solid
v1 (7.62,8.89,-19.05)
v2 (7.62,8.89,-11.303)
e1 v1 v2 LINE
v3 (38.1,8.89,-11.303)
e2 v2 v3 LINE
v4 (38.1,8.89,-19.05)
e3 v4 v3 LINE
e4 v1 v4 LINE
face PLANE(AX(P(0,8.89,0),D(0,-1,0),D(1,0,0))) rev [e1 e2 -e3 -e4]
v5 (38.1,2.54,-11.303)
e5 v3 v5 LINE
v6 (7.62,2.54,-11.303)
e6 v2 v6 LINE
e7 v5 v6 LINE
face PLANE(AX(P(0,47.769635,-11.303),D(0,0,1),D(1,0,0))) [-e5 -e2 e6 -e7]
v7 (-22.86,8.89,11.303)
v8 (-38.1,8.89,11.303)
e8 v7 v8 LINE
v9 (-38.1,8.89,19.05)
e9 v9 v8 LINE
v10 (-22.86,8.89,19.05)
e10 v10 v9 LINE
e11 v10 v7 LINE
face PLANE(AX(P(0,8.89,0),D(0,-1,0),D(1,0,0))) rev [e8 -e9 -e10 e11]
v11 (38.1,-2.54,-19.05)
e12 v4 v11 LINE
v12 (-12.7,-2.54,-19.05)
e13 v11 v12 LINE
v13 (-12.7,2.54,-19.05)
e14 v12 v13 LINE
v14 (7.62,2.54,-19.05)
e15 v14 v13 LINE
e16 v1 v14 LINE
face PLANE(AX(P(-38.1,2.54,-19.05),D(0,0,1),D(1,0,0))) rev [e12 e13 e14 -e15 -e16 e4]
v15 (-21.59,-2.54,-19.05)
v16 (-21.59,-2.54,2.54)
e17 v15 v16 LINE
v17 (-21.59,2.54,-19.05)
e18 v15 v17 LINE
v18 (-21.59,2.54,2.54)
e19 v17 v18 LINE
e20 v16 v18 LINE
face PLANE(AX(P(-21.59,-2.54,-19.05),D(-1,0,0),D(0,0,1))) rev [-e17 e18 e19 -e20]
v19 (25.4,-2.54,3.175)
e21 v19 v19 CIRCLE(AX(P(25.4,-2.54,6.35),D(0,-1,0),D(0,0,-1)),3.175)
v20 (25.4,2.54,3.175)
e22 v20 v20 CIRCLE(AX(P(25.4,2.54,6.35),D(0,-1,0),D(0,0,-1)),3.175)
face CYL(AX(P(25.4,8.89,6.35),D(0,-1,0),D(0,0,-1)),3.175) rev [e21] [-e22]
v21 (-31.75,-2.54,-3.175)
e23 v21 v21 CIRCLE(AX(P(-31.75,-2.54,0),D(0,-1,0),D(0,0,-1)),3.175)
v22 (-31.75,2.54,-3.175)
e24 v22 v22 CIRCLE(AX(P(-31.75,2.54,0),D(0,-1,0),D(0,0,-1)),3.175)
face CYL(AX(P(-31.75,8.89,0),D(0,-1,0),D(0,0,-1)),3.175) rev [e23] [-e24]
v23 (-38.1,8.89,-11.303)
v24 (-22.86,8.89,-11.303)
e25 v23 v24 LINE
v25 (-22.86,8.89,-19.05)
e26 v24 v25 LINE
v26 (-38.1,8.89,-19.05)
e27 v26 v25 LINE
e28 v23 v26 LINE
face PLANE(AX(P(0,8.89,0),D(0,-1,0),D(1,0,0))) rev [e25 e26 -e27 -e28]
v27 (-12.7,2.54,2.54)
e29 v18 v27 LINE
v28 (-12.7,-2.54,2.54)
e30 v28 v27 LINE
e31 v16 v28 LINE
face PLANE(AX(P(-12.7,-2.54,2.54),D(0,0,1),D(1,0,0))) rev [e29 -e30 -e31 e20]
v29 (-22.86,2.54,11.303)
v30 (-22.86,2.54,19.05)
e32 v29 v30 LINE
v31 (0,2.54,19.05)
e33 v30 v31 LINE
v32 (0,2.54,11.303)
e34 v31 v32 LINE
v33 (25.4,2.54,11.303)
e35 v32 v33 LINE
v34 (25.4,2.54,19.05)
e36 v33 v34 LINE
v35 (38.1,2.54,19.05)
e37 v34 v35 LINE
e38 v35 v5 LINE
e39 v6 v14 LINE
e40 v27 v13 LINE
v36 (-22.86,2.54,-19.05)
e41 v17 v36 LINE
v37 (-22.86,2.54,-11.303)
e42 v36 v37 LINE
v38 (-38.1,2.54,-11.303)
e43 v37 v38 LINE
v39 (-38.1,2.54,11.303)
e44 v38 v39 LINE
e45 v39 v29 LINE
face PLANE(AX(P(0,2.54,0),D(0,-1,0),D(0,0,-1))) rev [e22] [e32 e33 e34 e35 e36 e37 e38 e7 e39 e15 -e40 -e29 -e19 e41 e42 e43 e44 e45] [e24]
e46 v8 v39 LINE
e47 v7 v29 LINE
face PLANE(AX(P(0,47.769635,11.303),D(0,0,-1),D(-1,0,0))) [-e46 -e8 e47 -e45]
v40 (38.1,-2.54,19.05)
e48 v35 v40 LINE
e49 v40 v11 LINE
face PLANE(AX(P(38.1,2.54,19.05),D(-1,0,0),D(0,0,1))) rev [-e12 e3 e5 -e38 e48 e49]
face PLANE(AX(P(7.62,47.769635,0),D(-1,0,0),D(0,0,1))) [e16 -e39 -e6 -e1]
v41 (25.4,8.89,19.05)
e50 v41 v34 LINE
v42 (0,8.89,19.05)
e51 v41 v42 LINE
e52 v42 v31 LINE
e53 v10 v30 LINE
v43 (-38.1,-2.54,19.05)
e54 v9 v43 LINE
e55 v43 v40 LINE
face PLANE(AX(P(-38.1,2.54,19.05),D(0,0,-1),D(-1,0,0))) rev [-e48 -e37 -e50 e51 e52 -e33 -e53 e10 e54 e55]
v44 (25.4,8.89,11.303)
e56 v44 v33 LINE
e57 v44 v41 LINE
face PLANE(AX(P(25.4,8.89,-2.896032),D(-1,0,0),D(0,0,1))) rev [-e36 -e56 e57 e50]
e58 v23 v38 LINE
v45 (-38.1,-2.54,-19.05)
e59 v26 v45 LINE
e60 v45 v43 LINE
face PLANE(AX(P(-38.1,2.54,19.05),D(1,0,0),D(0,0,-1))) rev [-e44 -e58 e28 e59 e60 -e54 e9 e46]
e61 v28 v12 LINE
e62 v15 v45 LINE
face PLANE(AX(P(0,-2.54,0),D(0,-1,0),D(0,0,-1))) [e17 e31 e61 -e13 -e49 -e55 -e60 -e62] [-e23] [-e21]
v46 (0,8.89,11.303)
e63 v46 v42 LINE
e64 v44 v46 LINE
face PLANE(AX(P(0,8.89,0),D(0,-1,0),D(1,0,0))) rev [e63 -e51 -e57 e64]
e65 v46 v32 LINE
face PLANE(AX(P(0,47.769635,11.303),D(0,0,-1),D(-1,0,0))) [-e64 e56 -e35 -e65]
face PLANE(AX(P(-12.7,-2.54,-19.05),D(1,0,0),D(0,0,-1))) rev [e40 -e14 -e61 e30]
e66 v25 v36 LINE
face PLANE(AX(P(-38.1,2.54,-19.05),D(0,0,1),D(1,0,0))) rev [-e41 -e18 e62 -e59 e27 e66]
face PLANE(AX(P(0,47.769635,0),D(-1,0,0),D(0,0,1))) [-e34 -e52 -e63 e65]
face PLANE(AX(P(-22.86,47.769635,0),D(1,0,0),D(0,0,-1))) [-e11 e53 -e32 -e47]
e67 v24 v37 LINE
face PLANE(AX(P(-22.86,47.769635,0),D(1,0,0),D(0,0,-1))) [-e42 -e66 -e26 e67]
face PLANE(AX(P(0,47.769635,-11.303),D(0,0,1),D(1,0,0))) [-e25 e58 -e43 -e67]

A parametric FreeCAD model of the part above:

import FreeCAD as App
import Part
import Sketcher
Q = App.Units.Quantity


def add_polygon(sketch, points):
    """Adds a closed chain of lines whose ends are joined by coincident constraints."""
    first, n = sketch.GeometryCount, len(points)
    for a, b in zip(points, points[1:] + points[:1]):
        sketch.addGeometry(Part.LineSegment(App.Vector(*a, 0), App.Vector(*b, 0)), False)
    for i in range(n):
        sketch.addConstraint(Sketcher.Constraint("Coincident", first + i, 2, first + (i + 1) % n, 1))

doc = App.newDocument("Part")
body = doc.addObject("PartDesign::Body", "Body")

sketch1 = doc.addObject("Sketcher::SketchObject", "Sketch")
body.addObject(sketch1)
sketch1.AttachmentSupport = (doc.XZ_Plane, [""])
sketch1.MapMode = "FlatFace"
add_polygon(sketch1, [(-38, -19), (-38, 19), (38, 19), (38, -19)])
sketch1.addConstraint(Sketcher.Constraint("Vertical", 0))
sketch1.addConstraint(Sketcher.Constraint("Horizontal", 1))
sketch1.addConstraint(Sketcher.Constraint("Vertical", 2))
sketch1.addConstraint(Sketcher.Constraint("Horizontal", 3))
sketch1.addConstraint(Sketcher.Constraint("Symmetric", 0, 2, 2, 2, -1, 1))
sketch1.addConstraint(Sketcher.Constraint("DistanceX", 1, 1, 1, 2, Q("3 in")))
sketch1.addConstraint(Sketcher.Constraint("DistanceY", 0, 1, 0, 2, Q("1.5 in")))
pad1 = doc.addObject("PartDesign::Pad", "Pad")
body.addObject(pad1)
pad1.Profile = sketch1
pad1.Length = Q("0.2 in")
pad1.Midplane = True

sketch2 = doc.addObject("Sketcher::SketchObject", "Sketch001")
body.addObject(sketch2)
sketch2.AttachmentSupport = (doc.XZ_Plane, [""])
sketch2.MapMode = "FlatFace"
sketch2.AttachmentOffset = App.Placement(App.Vector(0, 0, -0.1 * 25.4), App.Rotation())
add_polygon(sketch2, [(-38, -19), (-38, -11), (-23, -11), (-23, -19)])
add_polygon(sketch2, [(8, -19), (8, -11), (38, -11), (38, -19)])
add_polygon(sketch2, [(0, 11), (0, 19), (38, 19), (38, 11)])
add_polygon(sketch2, [(-38, 11), (-38, 19), (-23, 19), (-23, 11)])
sketch2.addConstraint(Sketcher.Constraint("Vertical", 0))
sketch2.addConstraint(Sketcher.Constraint("Horizontal", 1))
sketch2.addConstraint(Sketcher.Constraint("Vertical", 2))
sketch2.addConstraint(Sketcher.Constraint("Horizontal", 3))
sketch2.addConstraint(Sketcher.Constraint("Vertical", 4))
sketch2.addConstraint(Sketcher.Constraint("Horizontal", 5))
sketch2.addConstraint(Sketcher.Constraint("Vertical", 6))
sketch2.addConstraint(Sketcher.Constraint("Horizontal", 7))
sketch2.addConstraint(Sketcher.Constraint("Vertical", 8))
sketch2.addConstraint(Sketcher.Constraint("Horizontal", 9))
sketch2.addConstraint(Sketcher.Constraint("Vertical", 10))
sketch2.addConstraint(Sketcher.Constraint("Horizontal", 11))
sketch2.addConstraint(Sketcher.Constraint("Vertical", 12))
sketch2.addConstraint(Sketcher.Constraint("Horizontal", 13))
sketch2.addConstraint(Sketcher.Constraint("Vertical", 14))
sketch2.addConstraint(Sketcher.Constraint("Horizontal", 15))
sketch2.addConstraint(Sketcher.Constraint("Symmetric", 3, 2, 9, 2, -1, 1))
sketch2.addConstraint(Sketcher.Constraint("Symmetric", 6, 2, 12, 2, -1, 1))
sketch2.addConstraint(Sketcher.Constraint("Symmetric", 0, 2, 5, 2, -2))
sketch2.addConstraint(Sketcher.Constraint("Symmetric", 2, 2, 13, 2, -1))
sketch2.addConstraint(Sketcher.Constraint("PointOnObject", 8, 2, -2))
sketch2.addConstraint(Sketcher.Constraint("Horizontal", 11, 2, 14, 2))
sketch2.addConstraint(Sketcher.Constraint("Equal", 6, 8))
sketch2.addConstraint(Sketcher.Constraint("DistanceX", 1, 1, 1, 2, Q("0.6 in")))
sketch2.addConstraint(Sketcher.Constraint("DistanceX", 5, 1, 5, 2, Q("1.2 in")))
sketch2.addConstraint(Sketcher.Constraint("DistanceX", 9, 1, 9, 2, Q("1.5 in")))
sketch2.addConstraint(Sketcher.Constraint("DistanceY", 7, 2, 8, 2, Q("1.5 in")))
sketch2.addConstraint(Sketcher.Constraint("DistanceY", 0, 1, 0, 2, Q("0.305 in")))
pad2 = doc.addObject("PartDesign::Pad", "Pad001")
body.addObject(pad2)
pad2.Profile = sketch2
pad2.Length = Q("0.25 in")
pad2.Reversed = True

sketch3 = doc.addObject("Sketcher::SketchObject", "Sketch002")
body.addObject(sketch3)
sketch3.AttachmentSupport = (doc.XZ_Plane, [""])
sketch3.MapMode = "FlatFace"
sketch3.AttachmentOffset = App.Placement(App.Vector(0, 0, -0.1 * 25.4), App.Rotation())
add_polygon(sketch3, [(-22, -19), (-22, 3), (-13, 3), (-13, -19)])
sketch3.addConstraint(Sketcher.Constraint("Vertical", 0))
sketch3.addConstraint(Sketcher.Constraint("Horizontal", 1))
sketch3.addConstraint(Sketcher.Constraint("Vertical", 2))
sketch3.addConstraint(Sketcher.Constraint("Horizontal", 3))
sketch3.addConstraint(Sketcher.Constraint("DistanceX", 1, 1, 1, 2, Q("0.35 in")))
sketch3.addConstraint(Sketcher.Constraint("DistanceY", 0, 1, 0, 2, Q("0.85 in")))
sketch3.addConstraint(Sketcher.Constraint("DistanceY", -1, 1, 0, 2, Q("0.1 in")))
sketch3.addConstraint(Sketcher.Constraint("DistanceX", 1, 2, -1, 1, Q("0.5 in")))
pocket1 = doc.addObject("PartDesign::Pocket", "Pocket")
body.addObject(pocket1)
pocket1.Profile = sketch3
pocket1.Type = "ThroughAll"
pocket1.Reversed = True

sketch4 = doc.addObject("Sketcher::SketchObject", "Sketch003")
body.addObject(sketch4)
sketch4.AttachmentSupport = (doc.XY_Plane, [""])
sketch4.MapMode = "FlatFace"
sketch4.AttachmentOffset = App.Placement(App.Vector(0, 0, 0.75 * 25.4), App.Rotation())
add_polygon(sketch4, [(25, 9), (25, 3), (38, 3), (38, 9)])
sketch4.addConstraint(Sketcher.Constraint("Vertical", 0))
sketch4.addConstraint(Sketcher.Constraint("Horizontal", 1))
sketch4.addConstraint(Sketcher.Constraint("Vertical", 2))
sketch4.addConstraint(Sketcher.Constraint("Horizontal", 3))
sketch4.addConstraint(Sketcher.Constraint("DistanceX", 1, 1, 1, 2, Q("0.5 in")))
sketch4.addConstraint(Sketcher.Constraint("DistanceX", -1, 1, 0, 2, Q("1 in")))
sketch4.addConstraint(Sketcher.Constraint("DistanceY", 0, 2, 0, 1, Q("0.25 in")))
sketch4.addConstraint(Sketcher.Constraint("DistanceY", -1, 1, 0, 2, Q("0.1 in")))
pocket2 = doc.addObject("PartDesign::Pocket", "Pocket001")
body.addObject(pocket2)
pocket2.Profile = sketch4
pocket2.Length = Q("0.305 in")

sketch5 = doc.addObject("Sketcher::SketchObject", "Sketch004")
body.addObject(sketch5)
sketch5.AttachmentSupport = (doc.XZ_Plane, [""])
sketch5.MapMode = "FlatFace"
sketch5.AttachmentOffset = App.Placement(App.Vector(0, 0, 0.1 * 25.4), App.Rotation())
sketch5.addGeometry(Part.Circle(App.Vector(25.4, 6.3, 0), App.Vector(0, 0, 1), 3.2), False)
sketch5.addGeometry(Part.Circle(App.Vector(-31.8, 0, 0), App.Vector(0, 0, 1), 3.2), False)
sketch5.addConstraint(Sketcher.Constraint("Equal", 0, 1))
sketch5.addConstraint(Sketcher.Constraint("PointOnObject", 1, 3, -1))
sketch5.addConstraint(Sketcher.Constraint("Diameter", 0, Q("0.25 in")))
sketch5.addConstraint(Sketcher.Constraint("DistanceX", -1, 1, 0, 3, Q("1 in")))
sketch5.addConstraint(Sketcher.Constraint("DistanceY", -1, 1, 0, 3, Q("0.25 in")))
sketch5.addConstraint(Sketcher.Constraint("DistanceX", 1, 3, -1, 1, Q("1.25 in")))
pocket3 = doc.addObject("PartDesign::Pocket", "Pocket002")
body.addObject(pocket3)
pocket3.Profile = sketch5
pocket3.Type = "ThroughAll"

doc.recompute()
